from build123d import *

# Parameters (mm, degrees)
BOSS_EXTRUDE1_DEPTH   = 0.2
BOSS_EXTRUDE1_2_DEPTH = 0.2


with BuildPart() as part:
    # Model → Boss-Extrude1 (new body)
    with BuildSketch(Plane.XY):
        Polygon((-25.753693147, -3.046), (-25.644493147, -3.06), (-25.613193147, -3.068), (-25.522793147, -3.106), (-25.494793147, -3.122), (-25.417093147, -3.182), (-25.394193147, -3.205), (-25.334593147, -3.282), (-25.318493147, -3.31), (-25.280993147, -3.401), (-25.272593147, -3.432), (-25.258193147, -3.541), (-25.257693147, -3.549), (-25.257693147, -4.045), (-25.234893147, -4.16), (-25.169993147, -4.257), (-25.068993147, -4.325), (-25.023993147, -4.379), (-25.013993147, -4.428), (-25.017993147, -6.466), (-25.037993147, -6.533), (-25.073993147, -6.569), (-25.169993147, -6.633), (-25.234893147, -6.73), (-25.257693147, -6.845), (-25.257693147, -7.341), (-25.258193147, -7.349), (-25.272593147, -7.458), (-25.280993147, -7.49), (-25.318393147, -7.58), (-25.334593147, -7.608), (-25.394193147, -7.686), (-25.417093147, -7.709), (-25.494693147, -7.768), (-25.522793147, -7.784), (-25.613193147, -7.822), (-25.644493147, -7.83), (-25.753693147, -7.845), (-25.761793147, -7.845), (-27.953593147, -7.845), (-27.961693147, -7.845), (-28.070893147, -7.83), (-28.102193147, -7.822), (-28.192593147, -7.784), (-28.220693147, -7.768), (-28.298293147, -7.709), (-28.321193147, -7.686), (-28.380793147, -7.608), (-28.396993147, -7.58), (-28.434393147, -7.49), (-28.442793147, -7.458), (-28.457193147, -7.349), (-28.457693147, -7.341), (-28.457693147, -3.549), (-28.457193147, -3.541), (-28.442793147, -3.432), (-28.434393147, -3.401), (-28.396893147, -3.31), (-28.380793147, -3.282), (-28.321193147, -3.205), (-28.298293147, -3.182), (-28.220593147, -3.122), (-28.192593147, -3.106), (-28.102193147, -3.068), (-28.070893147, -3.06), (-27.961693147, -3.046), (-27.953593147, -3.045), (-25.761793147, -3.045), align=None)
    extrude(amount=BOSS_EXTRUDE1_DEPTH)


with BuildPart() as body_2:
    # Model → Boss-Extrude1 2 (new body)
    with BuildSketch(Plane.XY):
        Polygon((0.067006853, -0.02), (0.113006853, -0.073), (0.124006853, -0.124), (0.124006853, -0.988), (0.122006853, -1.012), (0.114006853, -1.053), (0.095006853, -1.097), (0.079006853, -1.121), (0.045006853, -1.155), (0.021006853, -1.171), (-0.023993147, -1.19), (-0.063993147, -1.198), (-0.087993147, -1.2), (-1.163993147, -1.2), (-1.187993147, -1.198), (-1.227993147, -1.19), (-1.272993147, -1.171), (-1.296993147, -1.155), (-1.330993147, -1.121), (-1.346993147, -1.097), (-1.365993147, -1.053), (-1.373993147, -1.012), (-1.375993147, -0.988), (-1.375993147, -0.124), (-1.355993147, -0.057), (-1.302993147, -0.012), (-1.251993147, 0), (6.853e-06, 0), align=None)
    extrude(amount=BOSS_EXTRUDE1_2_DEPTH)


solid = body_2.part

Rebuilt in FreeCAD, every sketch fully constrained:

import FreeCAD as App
import Part
import Sketcher

V = App.Vector
Q = App.Units.Quantity

doc = App.newDocument("Part")
body = doc.addObject("PartDesign::Body", "Body")

# Sketch on XY plane
sketch1 = body.newObject("Sketcher::SketchObject", "Sketch")
sketch1.AttachmentSupport = (doc.getObject("XY_Plane"), [""])
sketch1.MapMode = "FlatFace"
sketch1.addGeometry([
    Part.LineSegment(V(-25.644493, -3.06, 0), V(-25.753693, -3.046, 0)),  # 0
    Part.LineSegment(V(-25.753693, -3.046, 0), V(-25.761793, -3.045, 0)),  # 1
    Part.LineSegment(V(-25.761793, -3.045, 0), V(-27.953593, -3.045, 0)),  # 2
    Part.LineSegment(V(-27.953593, -3.045, 0), V(-27.961693, -3.046, 0)),  # 3
    Part.LineSegment(V(-27.961693, -3.046, 0), V(-28.070893, -3.06, 0)),  # 4
    Part.LineSegment(V(-28.070893, -3.06, 0), V(-28.102193, -3.068, 0)),  # 5
    Part.LineSegment(V(-28.102193, -3.068, 0), V(-28.192593, -3.106, 0)),  # 6
    Part.LineSegment(V(-28.192593, -3.106, 0), V(-28.220593, -3.122, 0)),  # 7
    Part.LineSegment(V(-28.220593, -3.122, 0), V(-28.298293, -3.182, 0)),  # 8
    Part.LineSegment(V(-28.298293, -3.182, 0), V(-28.321193, -3.205, 0)),  # 9
    Part.LineSegment(V(-28.321193, -3.205, 0), V(-28.380793, -3.282, 0)),  # 10
    Part.LineSegment(V(-28.380793, -3.282, 0), V(-28.396893, -3.31, 0)),  # 11
    Part.LineSegment(V(-28.396893, -3.31, 0), V(-28.434393, -3.401, 0)),  # 12
    Part.LineSegment(V(-28.434393, -3.401, 0), V(-28.442793, -3.432, 0)),  # 13
    Part.LineSegment(V(-28.442793, -3.432, 0), V(-28.457193, -3.541, 0)),  # 14
    Part.LineSegment(V(-28.457193, -3.541, 0), V(-28.457693, -3.549, 0)),  # 15
    Part.LineSegment(V(-28.457693, -3.549, 0), V(-28.457693, -7.341, 0)),  # 16
    Part.LineSegment(V(-28.457693, -7.341, 0), V(-28.457193, -7.349, 0)),  # 17
    Part.LineSegment(V(-28.457193, -7.349, 0), V(-28.442793, -7.458, 0)),  # 18
    Part.LineSegment(V(-28.442793, -7.458, 0), V(-28.434393, -7.49, 0)),  # 19
    Part.LineSegment(V(-28.434393, -7.49, 0), V(-28.396993, -7.58, 0)),  # 20
    Part.LineSegment(V(-28.396993, -7.58, 0), V(-28.380793, -7.608, 0)),  # 21
    Part.LineSegment(V(-28.380793, -7.608, 0), V(-28.321193, -7.686, 0)),  # 22
    Part.LineSegment(V(-28.321193, -7.686, 0), V(-28.298293, -7.709, 0)),  # 23
    Part.LineSegment(V(-28.298293, -7.709, 0), V(-28.220693, -7.768, 0)),  # 24
    Part.LineSegment(V(-28.220693, -7.768, 0), V(-28.192593, -7.784, 0)),  # 25
    Part.LineSegment(V(-28.192593, -7.784, 0), V(-28.102193, -7.822, 0)),  # 26
    Part.LineSegment(V(-28.102193, -7.822, 0), V(-28.070893, -7.83, 0)),  # 27
    Part.LineSegment(V(-28.070893, -7.83, 0), V(-27.961693, -7.845, 0)),  # 28
    Part.LineSegment(V(-27.961693, -7.845, 0), V(-25.753693, -7.845, 0)),  # 29
    Part.LineSegment(V(-25.753693, -7.845, 0), V(-25.644493, -7.83, 0)),  # 30
    Part.LineSegment(V(-25.644493, -7.83, 0), V(-25.613193, -7.822, 0)),  # 31
    Part.LineSegment(V(-25.613193, -7.822, 0), V(-25.522793, -7.784, 0)),  # 32
    Part.LineSegment(V(-25.522793, -7.784, 0), V(-25.494693, -7.768, 0)),  # 33
    Part.LineSegment(V(-25.494693, -7.768, 0), V(-25.417093, -7.709, 0)),  # 34
    Part.LineSegment(V(-25.417093, -7.709, 0), V(-25.394193, -7.686, 0)),  # 35
    Part.LineSegment(V(-25.394193, -7.686, 0), V(-25.334593, -7.608, 0)),  # 36
    Part.LineSegment(V(-25.334593, -7.608, 0), V(-25.318393, -7.58, 0)),  # 37
    Part.LineSegment(V(-25.318393, -7.58, 0), V(-25.280993, -7.49, 0)),  # 38
    Part.LineSegment(V(-25.280993, -7.49, 0), V(-25.272593, -7.458, 0)),  # 39
    Part.LineSegment(V(-25.272593, -7.458, 0), V(-25.258193, -7.349, 0)),  # 40
    Part.LineSegment(V(-25.258193, -7.349, 0), V(-25.257693, -7.341, 0)),  # 41
    Part.LineSegment(V(-25.257693, -7.341, 0), V(-25.257693, -6.845, 0)),  # 42
    Part.LineSegment(V(-25.257693, -6.845, 0), V(-25.234893, -6.73, 0)),  # 43
    Part.LineSegment(V(-25.234893, -6.73, 0), V(-25.169993, -6.633, 0)),  # 44
    Part.LineSegment(V(-25.169993, -6.633, 0), V(-25.073993, -6.569, 0)),  # 45
    Part.LineSegment(V(-25.073993, -6.569, 0), V(-25.037993, -6.533, 0)),  # 46
    Part.LineSegment(V(-25.037993, -6.533, 0), V(-25.017993, -6.466, 0)),  # 47
    Part.LineSegment(V(-25.017993, -6.466, 0), V(-25.013993, -4.428, 0)),  # 48
    Part.LineSegment(V(-25.013993, -4.428, 0), V(-25.023993, -4.379, 0)),  # 49
    Part.LineSegment(V(-25.023993, -4.379, 0), V(-25.068993, -4.325, 0)),  # 50
    Part.LineSegment(V(-25.068993, -4.325, 0), V(-25.169993, -4.257, 0)),  # 51
    Part.LineSegment(V(-25.169993, -4.257, 0), V(-25.234893, -4.16, 0)),  # 52
    Part.LineSegment(V(-25.234893, -4.16, 0), V(-25.257693, -4.045, 0)),  # 53
    Part.LineSegment(V(-25.257693, -4.045, 0), V(-25.257693, -3.549, 0)),  # 54
    Part.LineSegment(V(-25.257693, -3.549, 0), V(-25.258193, -3.541, 0)),  # 55
    Part.LineSegment(V(-25.258193, -3.541, 0), V(-25.272593, -3.432, 0)),  # 56
    Part.LineSegment(V(-25.272593, -3.432, 0), V(-25.280993, -3.401, 0)),  # 57
    Part.LineSegment(V(-25.280993, -3.401, 0), V(-25.318493, -3.31, 0)),  # 58
    Part.LineSegment(V(-25.318493, -3.31, 0), V(-25.334593, -3.282, 0)),  # 59
    Part.LineSegment(V(-25.334593, -3.282, 0), V(-25.394193, -3.205, 0)),  # 60
    Part.LineSegment(V(-25.394193, -3.205, 0), V(-25.417093, -3.182, 0)),  # 61
    Part.LineSegment(V(-25.417093, -3.182, 0), V(-25.494793, -3.122, 0)),  # 62
    Part.LineSegment(V(-25.494793, -3.122, 0), V(-25.522793, -3.106, 0)),  # 63
    Part.LineSegment(V(-25.522793, -3.106, 0), V(-25.613193, -3.068, 0)),  # 64
    Part.LineSegment(V(-25.613193, -3.068, 0), V(-25.644493, -3.06, 0)),  # 65
], False)
sketch1.addConstraint([
    Sketcher.Constraint("Coincident", 0, 2, 1, 1),
    Sketcher.Constraint("Coincident", 1, 2, 2, 1),
    Sketcher.Constraint("Coincident", 2, 2, 3, 1),
    Sketcher.Constraint("Coincident", 3, 2, 4, 1),
    Sketcher.Constraint("Coincident", 4, 2, 5, 1),
    Sketcher.Constraint("Coincident", 5, 2, 6, 1),
    Sketcher.Constraint("Coincident", 6, 2, 7, 1),
    Sketcher.Constraint("Coincident", 7, 2, 8, 1),
    Sketcher.Constraint("Coincident", 8, 2, 9, 1),
    Sketcher.Constraint("Coincident", 9, 2, 10, 1),
    Sketcher.Constraint("Coincident", 10, 2, 11, 1),
    Sketcher.Constraint("Coincident", 11, 2, 12, 1),
    Sketcher.Constraint("Coincident", 12, 2, 13, 1),
    Sketcher.Constraint("Coincident", 13, 2, 14, 1),
    Sketcher.Constraint("Coincident", 14, 2, 15, 1),
    Sketcher.Constraint("Coincident", 15, 2, 16, 1),
    Sketcher.Constraint("Coincident", 16, 2, 17, 1),
    Sketcher.Constraint("Coincident", 17, 2, 18, 1),
    Sketcher.Constraint("Coincident", 18, 2, 19, 1),
    Sketcher.Constraint("Coincident", 19, 2, 20, 1),
    Sketcher.Constraint("Coincident", 20, 2, 21, 1),
    Sketcher.Constraint("Coincident", 21, 2, 22, 1),
    Sketcher.Constraint("Coincident", 22, 2, 23, 1),
    Sketcher.Constraint("Coincident", 23, 2, 24, 1),
    Sketcher.Constraint("Coincident", 24, 2, 25, 1),
    Sketcher.Constraint("Coincident", 25, 2, 26, 1),
    Sketcher.Constraint("Coincident", 26, 2, 27, 1),
    Sketcher.Constraint("Coincident", 27, 2, 28, 1),
    Sketcher.Constraint("Coincident", 28, 2, 29, 1),
    Sketcher.Constraint("Coincident", 29, 2, 30, 1),
    Sketcher.Constraint("Coincident", 30, 2, 31, 1),
    Sketcher.Constraint("Coincident", 31, 2, 32, 1),
    Sketcher.Constraint("Coincident", 32, 2, 33, 1),
    Sketcher.Constraint("Coincident", 33, 2, 34, 1),
    Sketcher.Constraint("Coincident", 34, 2, 35, 1),
    Sketcher.Constraint("Coincident", 35, 2, 36, 1),
    Sketcher.Constraint("Coincident", 36, 2, 37, 1),
    Sketcher.Constraint("Coincident", 37, 2, 38, 1),
    Sketcher.Constraint("Coincident", 38, 2, 39, 1),
    Sketcher.Constraint("Coincident", 39, 2, 40, 1),
    Sketcher.Constraint("Coincident", 40, 2, 41, 1),
    Sketcher.Constraint("Coincident", 41, 2, 42, 1),
    Sketcher.Constraint("Coincident", 42, 2, 43, 1),
    Sketcher.Constraint("Coincident", 43, 2, 44, 1),
    Sketcher.Constraint("Coincident", 44, 2, 45, 1),
    Sketcher.Constraint("Coincident", 45, 2, 46, 1),
    Sketcher.Constraint("Coincident", 46, 2, 47, 1),
    Sketcher.Constraint("Coincident", 47, 2, 48, 1),
    Sketcher.Constraint("Coincident", 48, 2, 49, 1),
    Sketcher.Constraint("Coincident", 49, 2, 50, 1),
    Sketcher.Constraint("Coincident", 50, 2, 51, 1),
    Sketcher.Constraint("Coincident", 51, 2, 52, 1),
    Sketcher.Constraint("Coincident", 52, 2, 53, 1),
    Sketcher.Constraint("Coincident", 53, 2, 54, 1),
    Sketcher.Constraint("Coincident", 54, 2, 55, 1),
    Sketcher.Constraint("Coincident", 55, 2, 56, 1),
    Sketcher.Constraint("Coincident", 56, 2, 57, 1),
    Sketcher.Constraint("Coincident", 57, 2, 58, 1),
    Sketcher.Constraint("Coincident", 58, 2, 59, 1),
    Sketcher.Constraint("Coincident", 59, 2, 60, 1),
    Sketcher.Constraint("Coincident", 60, 2, 61, 1),
    Sketcher.Constraint("Coincident", 61, 2, 62, 1),
    Sketcher.Constraint("Coincident", 62, 2, 63, 1),
    Sketcher.Constraint("Coincident", 63, 2, 64, 1),
    Sketcher.Constraint("Coincident", 64, 2, 65, 1),
    Sketcher.Constraint("Coincident", 65, 2, 0, 1),
    Sketcher.Constraint("Horizontal", 2),
    Sketcher.Constraint("Vertical", 16),
    Sketcher.Constraint("Horizontal", 29),
    Sketcher.Constraint("Vertical", 42),
    Sketcher.Constraint("Vertical", 54),
    Sketcher.Constraint("Parallel", 5, 31),
    Sketcher.Constraint("Parallel", 6, 32),
    Sketcher.Constraint("Parallel", 9, 35),
    Sketcher.Constraint("Parallel", 14, 40),
    Sketcher.Constraint("Parallel", 15, 41),
    Sketcher.Constraint("Parallel", 17, 55),
    Sketcher.Constraint("Parallel", 18, 56),
    Sketcher.Constraint("Parallel", 23, 61),
    Sketcher.Constraint("Parallel", 26, 64),
    Sketcher.Constraint("Parallel", 27, 65),
    Sketcher.Constraint("Horizontal", 0, 2, 3, 2),
    Sketcher.Constraint("Horizontal", 27, 2, 30, 2),
    Sketcher.Constraint("Horizontal", 26, 2, 31, 2),
    Sketcher.Constraint("Horizontal", 25, 2, 32, 2),
    Sketcher.Constraint("Horizontal", 24, 2, 33, 2),
    Sketcher.Constraint("Horizontal", 23, 2, 34, 2),
    Sketcher.Constraint("Horizontal", 22, 2, 35, 2),
    Sketcher.Constraint("Horizontal", 21, 2, 36, 2),
    Sketcher.Constraint("Horizontal", 20, 2, 37, 2),
    Sketcher.Constraint("Horizontal", 19, 2, 38, 2),
    Sketcher.Constraint("Horizontal", 18, 2, 39, 2),
    Sketcher.Constraint("Horizontal", 17, 2, 40, 2),
    Sketcher.Constraint("Horizontal", 16, 2, 41, 2),
    Sketcher.Constraint("Horizontal", 15, 2, 54, 2),
    Sketcher.Constraint("Horizontal", 14, 2, 55, 2),
    Sketcher.Constraint("Horizontal", 13, 2, 56, 2),
    Sketcher.Constraint("Horizontal", 12, 2, 57, 2),
    Sketcher.Constraint("Horizontal", 11, 2, 58, 2),
    Sketcher.Constraint("Horizontal", 10, 2, 59, 2),
    Sketcher.Constraint("Horizontal", 9, 2, 60, 2),
    Sketcher.Constraint("Horizontal", 8, 2, 61, 2),
    Sketcher.Constraint("Horizontal", 7, 2, 62, 2),
    Sketcher.Constraint("Horizontal", 6, 2, 63, 2),
    Sketcher.Constraint("Horizontal", 5, 2, 64, 2),
    Sketcher.Constraint("Horizontal", 4, 2, 65, 2),
    Sketcher.Constraint("Vertical", 14, 2, 17, 2),
    Sketcher.Constraint("Vertical", 13, 2, 18, 2),
    Sketcher.Constraint("Vertical", 12, 2, 19, 2),
    Sketcher.Constraint("Vertical", 10, 2, 21, 2),
    Sketcher.Constraint("Vertical", 9, 2, 22, 2),
    Sketcher.Constraint("Vertical", 8, 2, 23, 2),
    Sketcher.Constraint("Vertical", 6, 2, 25, 2),
    Sketcher.Constraint("Vertical", 5, 2, 26, 2),
    Sketcher.Constraint("Vertical", 4, 2, 27, 2),
    Sketcher.Constraint("Vertical", 3, 2, 28, 2),
    Sketcher.Constraint("Vertical", 0, 2, 29, 2),
    Sketcher.Constraint("Vertical", 44, 2, 51, 2),
    Sketcher.Constraint("Vertical", 43, 2, 52, 2),
    Sketcher.Constraint("Vertical", 42, 2, 53, 2),
    Sketcher.Constraint("Vertical", 40, 2, 55, 2),
    Sketcher.Constraint("Vertical", 39, 2, 56, 2),
    Sketcher.Constraint("Vertical", 38, 2, 57, 2),
    Sketcher.Constraint("Vertical", 36, 2, 59, 2),
    Sketcher.Constraint("Vertical", 35, 2, 60, 2),
    Sketcher.Constraint("Vertical", 34, 2, 61, 2),
    Sketcher.Constraint("Vertical", 32, 2, 63, 2),
    Sketcher.Constraint("Vertical", 31, 2, 64, 2),
    Sketcher.Constraint("Vertical", 30, 2, 65, 2),
    Sketcher.Constraint("Equal", 42, 54),
    Sketcher.Constraint("Equal", 1, 3),
    Sketcher.Constraint("Equal", 0, 4),
    Sketcher.Constraint("Equal", 25, 33),
    Sketcher.Constraint("Equal", 24, 34),
    Sketcher.Constraint("Equal", 22, 36),
    Sketcher.Constraint("Equal", 21, 37),
    Sketcher.Constraint("Equal", 20, 38),
    Sketcher.Constraint("Equal", 19, 39),
    Sketcher.Constraint("Equal", 44, 52),
    Sketcher.Constraint("Equal", 43, 53),
    Sketcher.Constraint("Equal", 12, 58),
    Sketcher.Constraint("Equal", 8, 62),
    Sketcher.Constraint("Angle", 46, Q("45 deg")),
    Sketcher.Constraint("DistanceX", 29, 1, 29, 2, 2.208),
    Sketcher.Constraint("DistanceY", 16, 2, 16, 1, 3.792),
    Sketcher.Constraint("DistanceY", 42, 1, 42, 2, 0.496),
    Sketcher.Constraint("DistanceY", 4, 2, -1, 1, 3.06),
    Sketcher.Constraint("DistanceY", 11, 2, -1, 1, 3.31),
    Sketcher.Constraint("DistanceY", 19, 2, -1, 1, 7.49),
    Sketcher.Constraint("DistanceY", 20, 2, -1, 1, 7.58),
    Sketcher.Constraint("DistanceY", 27, 2, -1, 1, 7.83),
    Sketcher.Constraint("DistanceY", 43, 2, -1, 1, 6.73),
    Sketcher.Constraint("DistanceY", 52, 2, -1, 1, 4.16),
    Sketcher.Constraint("DistanceX", 2, 2, 2, 1, 2.1918),
    Sketcher.Constraint("DistanceY", 0, 2, -1, 1, 3.046),
    Sketcher.Constraint("DistanceY", 1, 2, -1, 1, 3.045),
    Sketcher.Constraint("DistanceY", 5, 2, -1, 1, 3.068),
    Sketcher.Constraint("DistanceY", 6, 2, -1, 1, 3.106),
    Sketcher.Constraint("DistanceY", 7, 2, -1, 1, 3.122),
    Sketcher.Constraint("DistanceY", 8, 2, -1, 1, 3.182),
    Sketcher.Constraint("DistanceY", 9, 2, -1, 1, 3.205),
    Sketcher.Constraint("DistanceY", 10, 2, -1, 1, 3.282),
    Sketcher.Constraint("DistanceY", 12, 2, -1, 1, 3.401),
    Sketcher.Constraint("DistanceY", 13, 2, -1, 1, 3.432),
    Sketcher.Constraint("DistanceY", 14, 2, -1, 1, 3.541),
    Sketcher.Constraint("DistanceY", 21, 2, -1, 1, 7.608),
    Sketcher.Constraint("DistanceY", 22, 2, -1, 1, 7.686),
    Sketcher.Constraint("DistanceY", 24, 2, -1, 1, 7.768),
    Sketcher.Constraint("DistanceY", 28, 2, -1, 1, 7.845),
    Sketcher.Constraint("DistanceY", 44, 2, -1, 1, 6.633),
    Sketcher.Constraint("DistanceY", 45, 2, -1, 1, 6.569),
    Sketcher.Constraint("DistanceY", 46, 2, -1, 1, 6.533),
    Sketcher.Constraint("DistanceY", 47, 2, -1, 1, 6.466),
    Sketcher.Constraint("DistanceY", 48, 2, -1, 1, 4.428),
    Sketcher.Constraint("DistanceY", 49, 2, -1, 1, 4.379),
    Sketcher.Constraint("DistanceY", 50, 2, -1, 1, 4.325),
    Sketcher.Constraint("Distance", 11, 0.032299),
    Sketcher.Constraint("Distance", 7, 0.032249),
    Sketcher.Constraint("Distance", 8, 0.09817),
    Sketcher.Constraint("Distance", 10, 0.097371),
    Sketcher.Constraint("Distance", 20, 0.097462),
    Sketcher.Constraint("Distance", 21, 0.032349),
    Sketcher.Constraint("Distance", 43, 0.117238),
    Sketcher.Constraint("Distance", 44, 0.116709),
    Sketcher.Constraint("Distance", 47, 0.069921),
    Sketcher.Constraint("Distance", 49, 0.05001),
    Sketcher.Constraint("Distance", 0, 0.110094),
    Sketcher.Constraint("Distance", 5, 0.032306),
    Sketcher.Constraint("Distance", 6, 0.098062),
    Sketcher.Constraint("Distance", 9, 0.032456),
    Sketcher.Constraint("Distance", 13, 0.032118),
    Sketcher.Constraint("Distance", 14, 0.109947),
    Sketcher.Constraint("Distance", 15, 0.008016),
    Sketcher.Constraint("Distance", 24, 0.097482),
    Sketcher.Constraint("Distance", 45, 0.115378),
    Sketcher.Constraint("Distance", 50, 0.070292),
    Sketcher.Constraint("Distance", 51, 0.121758),
    Sketcher.Constraint("DistanceX", 0, 2, -1, 1, 25.753693),
])
pad1 = body.newObject("PartDesign::Pad", "Pad")
pad1.Profile = sketch1
pad1.Length = 0.2
body2 = doc.addObject("PartDesign::Body", "Body001")

# Sketch on XY plane
sketch2 = body2.newObject("Sketcher::SketchObject", "Sketch001")
sketch2.AttachmentSupport = (doc.getObject("XY_Plane001"), [""])
sketch2.MapMode = "FlatFace"
sketch2.addGeometry([
    Part.LineSegment(V(0.113007, -0.073, 0), V(0.067007, -0.02, 0)),  # 0
    Part.LineSegment(V(0.067007, -0.02, 0), V(0.000007, 0, 0)),  # 1
    Part.LineSegment(V(0.000007, 0, 0), V(-1.251993, 0, 0)),  # 2
    Part.LineSegment(V(-1.251993, 0, 0), V(-1.302993, -0.012, 0)),  # 3
    Part.LineSegment(V(-1.302993, -0.012, 0), V(-1.355993, -0.057, 0)),  # 4
    Part.LineSegment(V(-1.355993, -0.057, 0), V(-1.375993, -0.124, 0)),  # 5
    Part.LineSegment(V(-1.375993, -0.124, 0), V(-1.375993, -0.988, 0)),  # 6
    Part.LineSegment(V(-1.375993, -0.988, 0), V(-1.373993, -1.012, 0)),  # 7
    Part.LineSegment(V(-1.373993, -1.012, 0), V(-1.365993, -1.053, 0)),  # 8
    Part.LineSegment(V(-1.365993, -1.053, 0), V(-1.346993, -1.097, 0)),  # 9
    Part.LineSegment(V(-1.346993, -1.097, 0), V(-1.330993, -1.121, 0)),  # 10
    Part.LineSegment(V(-1.330993, -1.121, 0), V(-1.296993, -1.155, 0)),  # 11
    Part.LineSegment(V(-1.296993, -1.155, 0), V(-1.272993, -1.171, 0)),  # 12
    Part.LineSegment(V(-1.272993, -1.171, 0), V(-1.227993, -1.19, 0)),  # 13
    Part.LineSegment(V(-1.227993, -1.19, 0), V(-1.187993, -1.198, 0)),  # 14
    Part.LineSegment(V(-1.187993, -1.198, 0), V(-1.163993, -1.2, 0)),  # 15
    Part.LineSegment(V(-1.163993, -1.2, 0), V(-0.087993, -1.2, 0)),  # 16
    Part.LineSegment(V(-0.087993, -1.2, 0), V(-0.063993, -1.198, 0)),  # 17
    Part.LineSegment(V(-0.063993, -1.198, 0), V(-0.023993, -1.19, 0)),  # 18
    Part.LineSegment(V(-0.023993, -1.19, 0), V(0.021007, -1.171, 0)),  # 19
    Part.LineSegment(V(0.021007, -1.171, 0), V(0.045007, -1.155, 0)),  # 20
    Part.LineSegment(V(0.045007, -1.155, 0), V(0.079007, -1.121, 0)),  # 21
    Part.LineSegment(V(0.079007, -1.121, 0), V(0.095007, -1.097, 0)),  # 22
    Part.LineSegment(V(0.095007, -1.097, 0), V(0.114007, -1.053, 0)),  # 23
    Part.LineSegment(V(0.114007, -1.053, 0), V(0.122007, -1.012, 0)),  # 24
    Part.LineSegment(V(0.122007, -1.012, 0), V(0.124007, -0.988, 0)),  # 25
    Part.LineSegment(V(0.124007, -0.988, 0), V(0.124007, -0.124, 0)),  # 26
    Part.LineSegment(V(0.124007, -0.124, 0), V(0.113007, -0.073, 0)),  # 27
], False)
sketch2.addConstraint([
    Sketcher.Constraint("Coincident", 0, 2, 1, 1),
    Sketcher.Constraint("Coincident", 1, 2, 2, 1),
    Sketcher.Constraint("Coincident", 2, 2, 3, 1),
    Sketcher.Constraint("Coincident", 3, 2, 4, 1),
    Sketcher.Constraint("Coincident", 4, 2, 5, 1),
    Sketcher.Constraint("Coincident", 5, 2, 6, 1),
    Sketcher.Constraint("Coincident", 6, 2, 7, 1),
    Sketcher.Constraint("Coincident", 7, 2, 8, 1),
    Sketcher.Constraint("Coincident", 8, 2, 9, 1),
    Sketcher.Constraint("Coincident", 9, 2, 10, 1),
    Sketcher.Constraint("Coincident", 10, 2, 11, 1),
    Sketcher.Constraint("Coincident", 11, 2, 12, 1),
    Sketcher.Constraint("Coincident", 12, 2, 13, 1),
    Sketcher.Constraint("Coincident", 13, 2, 14, 1),
    Sketcher.Constraint("Coincident", 14, 2, 15, 1),
    Sketcher.Constraint("Coincident", 15, 2, 16, 1),
    Sketcher.Constraint("Coincident", 16, 2, 17, 1),
    Sketcher.Constraint("Coincident", 17, 2, 18, 1),
    Sketcher.Constraint("Coincident", 18, 2, 19, 1),
    Sketcher.Constraint("Coincident", 19, 2, 20, 1),
    Sketcher.Constraint("Coincident", 20, 2, 21, 1),
    Sketcher.Constraint("Coincident", 21, 2, 22, 1),
    Sketcher.Constraint("Coincident", 22, 2, 23, 1),
    Sketcher.Constraint("Coincident", 23, 2, 24, 1),
    Sketcher.Constraint("Coincident", 24, 2, 25, 1),
    Sketcher.Constraint("Coincident", 25, 2, 26, 1),
    Sketcher.Constraint("Coincident", 26, 2, 27, 1),
    Sketcher.Constraint("Coincident", 27, 2, 0, 1),
    Sketcher.Constraint("Horizontal", 2),
    Sketcher.Constraint("Vertical", 6),
    Sketcher.Constraint("Horizontal", 16),
    Sketcher.Constraint("Vertical", 26),
    Sketcher.Constraint("Coincident", 1, 2, -1, 1),
    Sketcher.Constraint("Perpendicular", 1, 5),
    Sketcher.Constraint("Perpendicular", 7, 17),
    Sketcher.Constraint("Perpendicular", 10, 20),
    Sketcher.Constraint("Perpendicular", 11, 21),
    Sketcher.Constraint("Perpendicular", 12, 22),
    Sketcher.Constraint("Perpendicular", 15, 25),
    Sketcher.Constraint("Horizontal", 14, 2, 17, 2),
    Sketcher.Constraint("Horizontal", 13, 2, 18, 2),
    Sketcher.Constraint("Horizontal", 12, 2, 19, 2),
    Sketcher.Constraint("Horizontal", 11, 2, 20, 2),
    Sketcher.Constraint("Horizontal", 10, 2, 21, 2),
    Sketcher.Constraint("Horizontal", 9, 2, 22, 2),
    Sketcher.Constraint("Horizontal", 8, 2, 23, 2),
    Sketcher.Constraint("Horizontal", 7, 2, 24, 2),
    Sketcher.Constraint("Horizontal", 6, 2, 25, 2),
    Sketcher.Constraint("Horizontal", 5, 2, 26, 2),
    Sketcher.Constraint("Equal", 1, 5),
    Sketcher.Constraint("Equal", 10, 12),
    Sketcher.Constraint("Equal", 7, 15),
    Sketcher.Constraint("Equal", 15, 17),
    Sketcher.Constraint("Equal", 14, 18),
    Sketcher.Constraint("Equal", 13, 19),
    Sketcher.Constraint("Equal", 12, 20),
    Sketcher.Constraint("Equal", 11, 21),
    Sketcher.Constraint("Equal", 9, 23),
    Sketcher.Constraint("Equal", 8, 24),
    Sketcher.Constraint("DistanceY", 7, 2, 3, 2, 1.0),
    Sketcher.Constraint("DistanceY", 15, 2, -1, 1, 1.2),
    Sketcher.Constraint("DistanceX", 14, 2, 16, 2, 1.1),
    Sketcher.Constraint("DistanceX", 2, 2, 2, 1, 1.252),
    Sketcher.Constraint("DistanceX", 16, 1, 16, 2, 1.076),
    Sketcher.Constraint("DistanceY", 6, 2, 6, 1, 0.864),
    Sketcher.Constraint("DistanceY", 0, 2, -1, 1, 0.02),
    Sketcher.Constraint("DistanceY", 13, 2, -1, 1, 1.19),
    Sketcher.Constraint("DistanceX", 3, 2, 0, 2, 1.37),
    Sketcher.Constraint("DistanceX", 6, 2, 8, 2, 0.01),
    Sketcher.Constraint("DistanceY", 9, 2, 4, 2, 1.04),
    Sketcher.Constraint("DistanceX", 9, 2, 11, 2, 0.05),
    Sketcher.Constraint("DistanceX", 13, 2, 14, 2, 0.04),
    Sketcher.Constraint("DistanceY", 3, 2, -1, 1, 0.012),
    Sketcher.Constraint("DistanceY", 4, 2, -1, 1, 0.057),
    Sketcher.Constraint("DistanceY", 8, 2, -1, 1, 1.053),
    Sketcher.Constraint("DistanceY", 10, 2, -1, 1, 1.121),
    Sketcher.Constraint("DistanceY", 11, 2, -1, 1, 1.155),
    Sketcher.Constraint("DistanceY", 14, 2, -1, 1, 1.198),
    Sketcher.Constraint("DistanceY", 27, 2, -1, 1, 0.073),
    Sketcher.Constraint("DistanceX", 4, 2, 3, 2, 0.053),
    Sketcher.Constraint("DistanceX", 8, 2, 9, 2, 0.019),
    Sketcher.Constraint("DistanceX", 12, 2, 13, 2, 0.045),
    Sketcher.Constraint("DistanceX", 27, 2, 26, 2, 0.011),
])
pad2 = body2.newObject("PartDesign::Pad", "Pad001")
pad2.Profile = sketch2
pad2.Length = 0.2
body.Visibility = False

doc.recompute()
